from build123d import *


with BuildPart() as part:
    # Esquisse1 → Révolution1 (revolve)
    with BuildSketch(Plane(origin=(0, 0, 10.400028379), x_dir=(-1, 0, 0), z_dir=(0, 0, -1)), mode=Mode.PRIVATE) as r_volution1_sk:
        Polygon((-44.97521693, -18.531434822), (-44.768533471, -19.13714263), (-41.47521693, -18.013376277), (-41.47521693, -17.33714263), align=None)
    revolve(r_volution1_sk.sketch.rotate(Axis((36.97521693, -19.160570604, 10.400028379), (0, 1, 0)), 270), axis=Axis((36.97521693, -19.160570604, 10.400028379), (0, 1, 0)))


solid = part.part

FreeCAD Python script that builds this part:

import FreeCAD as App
import Part
import Sketcher
from FreeCAD import Vector


def add_polygon(sketch, points):
    """Adds a closed chain of lines whose ends are joined by coincident constraints."""
    first, n = sketch.GeometryCount, len(points)
    for a, b in zip(points, points[1:] + points[:1]):
        sketch.addGeometry(Part.LineSegment(App.Vector(*a, 0), App.Vector(*b, 0)), False)
    for i in range(n):
        sketch.addConstraint(Sketcher.Constraint("Coincident", first + i, 2, first + (i + 1) % n, 1))

doc = App.newDocument("Part")
body = doc.addObject("PartDesign::Body", "Body")

# Sketch on XY plane
sketch1 = body.newObject("Sketcher::SketchObject", "Sketch")
sketch1.AttachmentSupport = (doc.getObject("XY_Plane"), [""])
sketch1.MapMode = "FlatFace"
sketch1.AttachmentOffset = App.Placement(Vector(0, 0, 10.400028), App.Rotation())
add_polygon(sketch1, [(44.975217, -18.531435), (44.768533, -19.137143), (41.475217, -18.013376), (41.475217, -17.337143)])  # lines 0-3
sketch1.addGeometry(Part.LineSegment(Vector(36.975217, -19.137143, 0), Vector(36.975217, -17.337143, 0)), True)  # axis
sketch1.addConstraint(Sketcher.Constraint("Vertical", 2))
sketch1.addConstraint(Sketcher.Constraint("Vertical", 4))
sketch1.addConstraint(Sketcher.Constraint("Perpendicular", 0, 1))
sketch1.addConstraint(Sketcher.Constraint("Parallel", 1, 3))
sketch1.addConstraint(Sketcher.Constraint("Horizontal", 0, 2, 4, 1))
sketch1.addConstraint(Sketcher.Constraint("Horizontal", 2, 2, 4, 2))
sketch1.addConstraint(Sketcher.Constraint("DistanceY", 4, 1, 4, 2, 1.8))
sketch1.addConstraint(Sketcher.Constraint("DistanceX", 4, 1, 3, 2, 8.0))
sketch1.addConstraint(Sketcher.Constraint("DistanceX", 1, 2, 3, 2, 3.5))
sketch1.addConstraint(Sketcher.Constraint("Distance", 0, 0.64))
sketch1.addConstraint(Sketcher.Constraint("DistanceX", -1, 1, 0, 2, 44.768533))
sketch1.addConstraint(Sketcher.Constraint("DistanceY", 0, 2, -1, 1, 19.137143))
revolution = body.newObject("PartDesign::Revolution", "Revolution")
revolution.Profile = sketch1
revolution.ReferenceAxis = (sketch1, ["Axis0"])
revolution.Angle = 360

doc.recompute()
